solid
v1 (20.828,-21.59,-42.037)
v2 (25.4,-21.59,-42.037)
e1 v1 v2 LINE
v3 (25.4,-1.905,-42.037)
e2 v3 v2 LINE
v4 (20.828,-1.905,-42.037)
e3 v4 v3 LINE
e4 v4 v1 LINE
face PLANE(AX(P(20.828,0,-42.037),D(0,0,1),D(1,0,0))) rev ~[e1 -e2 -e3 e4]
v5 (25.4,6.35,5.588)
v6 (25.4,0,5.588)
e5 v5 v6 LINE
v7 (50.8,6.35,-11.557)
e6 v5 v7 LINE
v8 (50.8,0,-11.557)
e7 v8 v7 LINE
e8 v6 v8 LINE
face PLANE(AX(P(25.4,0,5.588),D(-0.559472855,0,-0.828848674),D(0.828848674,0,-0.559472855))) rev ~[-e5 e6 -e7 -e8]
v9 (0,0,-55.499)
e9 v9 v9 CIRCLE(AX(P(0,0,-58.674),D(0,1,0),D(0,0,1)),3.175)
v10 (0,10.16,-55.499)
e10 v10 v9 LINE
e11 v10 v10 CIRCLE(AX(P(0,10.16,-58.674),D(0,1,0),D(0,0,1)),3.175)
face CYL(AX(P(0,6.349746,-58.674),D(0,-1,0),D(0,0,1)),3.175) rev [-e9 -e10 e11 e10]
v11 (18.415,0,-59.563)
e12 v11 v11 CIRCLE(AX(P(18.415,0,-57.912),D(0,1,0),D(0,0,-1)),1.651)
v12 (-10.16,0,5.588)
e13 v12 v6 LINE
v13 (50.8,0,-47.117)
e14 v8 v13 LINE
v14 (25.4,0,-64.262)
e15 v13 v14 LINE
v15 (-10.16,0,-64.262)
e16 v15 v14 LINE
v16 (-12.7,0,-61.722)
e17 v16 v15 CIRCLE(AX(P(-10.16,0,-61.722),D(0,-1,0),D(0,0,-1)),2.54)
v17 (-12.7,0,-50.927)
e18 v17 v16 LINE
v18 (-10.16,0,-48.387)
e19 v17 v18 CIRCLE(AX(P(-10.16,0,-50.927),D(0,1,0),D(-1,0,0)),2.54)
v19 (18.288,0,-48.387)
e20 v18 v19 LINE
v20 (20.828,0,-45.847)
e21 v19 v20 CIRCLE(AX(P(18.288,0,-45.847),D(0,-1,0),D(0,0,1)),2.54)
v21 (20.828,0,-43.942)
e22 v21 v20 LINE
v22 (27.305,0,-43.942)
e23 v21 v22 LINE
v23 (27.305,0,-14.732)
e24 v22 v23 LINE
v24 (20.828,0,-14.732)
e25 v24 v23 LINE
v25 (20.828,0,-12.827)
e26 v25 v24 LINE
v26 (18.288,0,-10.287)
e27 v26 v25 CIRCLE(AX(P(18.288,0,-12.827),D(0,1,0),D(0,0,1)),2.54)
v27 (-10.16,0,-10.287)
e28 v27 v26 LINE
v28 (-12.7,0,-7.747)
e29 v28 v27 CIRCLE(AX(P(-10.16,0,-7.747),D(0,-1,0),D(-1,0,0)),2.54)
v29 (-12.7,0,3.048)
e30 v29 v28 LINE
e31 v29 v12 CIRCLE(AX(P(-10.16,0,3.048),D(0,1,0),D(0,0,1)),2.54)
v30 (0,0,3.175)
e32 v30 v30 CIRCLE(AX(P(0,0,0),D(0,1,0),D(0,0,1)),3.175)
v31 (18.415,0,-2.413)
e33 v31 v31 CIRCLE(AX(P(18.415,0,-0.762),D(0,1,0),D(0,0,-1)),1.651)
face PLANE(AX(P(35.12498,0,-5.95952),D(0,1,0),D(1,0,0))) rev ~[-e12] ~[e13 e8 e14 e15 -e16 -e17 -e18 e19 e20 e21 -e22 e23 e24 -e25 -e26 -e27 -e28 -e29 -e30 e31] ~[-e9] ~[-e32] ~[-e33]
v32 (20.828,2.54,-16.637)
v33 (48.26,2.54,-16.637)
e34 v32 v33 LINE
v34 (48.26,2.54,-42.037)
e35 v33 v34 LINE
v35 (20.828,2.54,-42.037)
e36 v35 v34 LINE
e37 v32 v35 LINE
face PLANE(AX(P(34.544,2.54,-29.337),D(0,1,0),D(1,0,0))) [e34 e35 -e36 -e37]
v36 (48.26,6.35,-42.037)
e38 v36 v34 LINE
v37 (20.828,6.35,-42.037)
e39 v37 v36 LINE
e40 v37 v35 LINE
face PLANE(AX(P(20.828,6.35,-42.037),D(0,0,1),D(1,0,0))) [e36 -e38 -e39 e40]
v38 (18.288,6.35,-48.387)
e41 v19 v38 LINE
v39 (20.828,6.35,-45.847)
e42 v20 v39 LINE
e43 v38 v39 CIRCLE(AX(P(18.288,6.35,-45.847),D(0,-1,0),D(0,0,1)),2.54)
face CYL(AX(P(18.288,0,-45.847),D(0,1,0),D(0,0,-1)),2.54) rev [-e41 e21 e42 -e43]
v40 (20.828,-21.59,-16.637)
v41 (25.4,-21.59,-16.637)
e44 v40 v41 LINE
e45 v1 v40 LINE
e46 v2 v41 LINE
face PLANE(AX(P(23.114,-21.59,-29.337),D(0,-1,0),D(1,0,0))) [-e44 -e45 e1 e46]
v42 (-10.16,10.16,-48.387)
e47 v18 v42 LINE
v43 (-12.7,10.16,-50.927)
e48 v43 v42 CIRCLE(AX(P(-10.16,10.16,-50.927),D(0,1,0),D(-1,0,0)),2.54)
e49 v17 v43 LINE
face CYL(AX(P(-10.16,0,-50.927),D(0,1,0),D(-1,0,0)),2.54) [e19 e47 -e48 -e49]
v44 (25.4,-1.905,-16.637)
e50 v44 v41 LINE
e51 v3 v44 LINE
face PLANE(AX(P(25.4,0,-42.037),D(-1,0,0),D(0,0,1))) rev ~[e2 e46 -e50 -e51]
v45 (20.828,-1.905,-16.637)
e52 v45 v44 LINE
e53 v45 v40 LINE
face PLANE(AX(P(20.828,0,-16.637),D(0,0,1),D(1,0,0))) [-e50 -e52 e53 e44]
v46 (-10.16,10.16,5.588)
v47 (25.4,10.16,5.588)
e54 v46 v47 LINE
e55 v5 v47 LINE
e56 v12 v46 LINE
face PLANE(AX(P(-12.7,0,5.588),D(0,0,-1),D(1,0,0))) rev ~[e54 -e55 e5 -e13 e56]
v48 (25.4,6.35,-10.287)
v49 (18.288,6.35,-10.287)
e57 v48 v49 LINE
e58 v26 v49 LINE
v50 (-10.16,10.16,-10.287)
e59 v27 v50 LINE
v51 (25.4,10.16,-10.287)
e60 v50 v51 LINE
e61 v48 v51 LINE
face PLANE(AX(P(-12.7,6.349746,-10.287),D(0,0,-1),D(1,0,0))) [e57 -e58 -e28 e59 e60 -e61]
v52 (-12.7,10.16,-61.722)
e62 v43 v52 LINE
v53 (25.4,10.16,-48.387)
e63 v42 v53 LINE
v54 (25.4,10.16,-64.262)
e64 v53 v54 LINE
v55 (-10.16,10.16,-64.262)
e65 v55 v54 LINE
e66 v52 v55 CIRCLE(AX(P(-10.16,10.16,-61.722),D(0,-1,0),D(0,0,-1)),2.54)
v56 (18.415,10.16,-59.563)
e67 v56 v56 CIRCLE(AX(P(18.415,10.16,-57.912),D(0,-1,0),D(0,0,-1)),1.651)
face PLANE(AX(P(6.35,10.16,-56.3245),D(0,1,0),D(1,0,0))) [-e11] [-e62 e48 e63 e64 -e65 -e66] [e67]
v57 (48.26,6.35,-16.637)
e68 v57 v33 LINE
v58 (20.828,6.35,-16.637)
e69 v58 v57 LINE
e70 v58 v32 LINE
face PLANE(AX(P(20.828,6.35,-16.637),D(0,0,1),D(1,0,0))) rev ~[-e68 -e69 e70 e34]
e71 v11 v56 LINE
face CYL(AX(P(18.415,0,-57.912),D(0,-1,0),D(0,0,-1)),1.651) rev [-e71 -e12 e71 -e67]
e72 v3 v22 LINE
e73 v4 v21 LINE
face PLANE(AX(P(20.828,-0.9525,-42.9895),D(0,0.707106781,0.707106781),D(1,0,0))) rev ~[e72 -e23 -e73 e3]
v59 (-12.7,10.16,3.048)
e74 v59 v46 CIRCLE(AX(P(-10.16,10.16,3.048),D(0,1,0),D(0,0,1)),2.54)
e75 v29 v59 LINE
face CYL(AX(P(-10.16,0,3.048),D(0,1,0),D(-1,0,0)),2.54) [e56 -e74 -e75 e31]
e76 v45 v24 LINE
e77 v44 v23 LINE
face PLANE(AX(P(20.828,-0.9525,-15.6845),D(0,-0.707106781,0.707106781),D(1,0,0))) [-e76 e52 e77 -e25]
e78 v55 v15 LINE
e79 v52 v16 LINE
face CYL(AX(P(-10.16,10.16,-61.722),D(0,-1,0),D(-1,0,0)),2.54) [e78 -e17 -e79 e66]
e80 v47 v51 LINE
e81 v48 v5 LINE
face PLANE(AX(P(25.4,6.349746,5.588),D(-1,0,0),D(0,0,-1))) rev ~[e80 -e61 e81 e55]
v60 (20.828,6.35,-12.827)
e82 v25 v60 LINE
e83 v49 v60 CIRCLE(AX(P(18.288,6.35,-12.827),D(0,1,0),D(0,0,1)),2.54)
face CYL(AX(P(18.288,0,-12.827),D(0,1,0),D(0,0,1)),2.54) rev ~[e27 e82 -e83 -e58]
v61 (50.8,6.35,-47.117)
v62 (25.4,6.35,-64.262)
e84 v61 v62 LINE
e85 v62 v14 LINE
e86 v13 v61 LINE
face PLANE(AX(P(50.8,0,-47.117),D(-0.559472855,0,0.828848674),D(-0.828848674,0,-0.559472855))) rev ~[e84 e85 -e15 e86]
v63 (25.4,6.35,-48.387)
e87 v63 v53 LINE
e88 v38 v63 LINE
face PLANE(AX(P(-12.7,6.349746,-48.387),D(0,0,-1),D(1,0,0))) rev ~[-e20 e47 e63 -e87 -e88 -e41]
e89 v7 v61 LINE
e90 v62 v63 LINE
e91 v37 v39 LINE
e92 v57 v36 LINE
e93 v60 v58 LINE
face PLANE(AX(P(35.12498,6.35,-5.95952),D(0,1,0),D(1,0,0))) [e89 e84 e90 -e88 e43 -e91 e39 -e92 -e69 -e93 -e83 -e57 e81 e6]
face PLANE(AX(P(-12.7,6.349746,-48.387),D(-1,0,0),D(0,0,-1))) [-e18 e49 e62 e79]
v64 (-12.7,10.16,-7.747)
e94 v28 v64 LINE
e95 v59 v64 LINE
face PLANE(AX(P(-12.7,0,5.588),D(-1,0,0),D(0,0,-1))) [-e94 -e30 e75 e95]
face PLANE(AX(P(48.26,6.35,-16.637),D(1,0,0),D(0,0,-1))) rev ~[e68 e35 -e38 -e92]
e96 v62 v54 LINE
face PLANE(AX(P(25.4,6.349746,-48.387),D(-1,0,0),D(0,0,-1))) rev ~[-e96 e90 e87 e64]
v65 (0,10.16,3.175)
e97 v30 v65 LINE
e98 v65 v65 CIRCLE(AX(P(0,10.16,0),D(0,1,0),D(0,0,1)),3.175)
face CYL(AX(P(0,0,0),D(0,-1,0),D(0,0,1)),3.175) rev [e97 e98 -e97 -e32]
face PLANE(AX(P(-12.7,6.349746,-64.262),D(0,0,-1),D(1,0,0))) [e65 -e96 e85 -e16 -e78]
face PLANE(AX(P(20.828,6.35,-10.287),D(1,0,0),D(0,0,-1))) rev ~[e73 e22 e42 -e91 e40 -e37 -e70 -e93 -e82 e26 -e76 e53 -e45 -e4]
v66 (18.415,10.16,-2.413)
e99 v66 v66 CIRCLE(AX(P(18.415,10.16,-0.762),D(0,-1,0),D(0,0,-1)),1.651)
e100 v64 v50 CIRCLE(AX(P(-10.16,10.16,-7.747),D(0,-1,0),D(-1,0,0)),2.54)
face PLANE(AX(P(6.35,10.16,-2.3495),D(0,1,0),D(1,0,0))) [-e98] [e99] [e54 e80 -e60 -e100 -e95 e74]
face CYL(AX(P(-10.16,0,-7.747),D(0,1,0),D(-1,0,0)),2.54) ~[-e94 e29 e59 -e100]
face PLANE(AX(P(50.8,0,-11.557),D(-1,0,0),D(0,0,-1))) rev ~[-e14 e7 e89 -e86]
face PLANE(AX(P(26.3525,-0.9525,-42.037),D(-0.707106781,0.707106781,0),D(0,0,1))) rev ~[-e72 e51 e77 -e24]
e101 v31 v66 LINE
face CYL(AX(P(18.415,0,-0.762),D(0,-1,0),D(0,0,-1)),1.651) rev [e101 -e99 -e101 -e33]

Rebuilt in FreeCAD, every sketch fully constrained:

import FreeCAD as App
import Part
import Sketcher
Q = App.Units.Quantity


def edges_at(feature, points):
    """Names of the edges that pass closest to the given points."""
    edges = feature.Shape.Edges
    near = lambda p: min(range(len(edges)), key=lambda i: edges[i].distToShape(Part.Vertex(*p))[0])
    return sorted({f"Edge{near(p) + 1}" for p in points})

doc = App.newDocument("Part")
body = doc.addObject("PartDesign::Body", "Body")

sketch1 = body.newObject("Sketcher::SketchObject", "Sketch")
sketch1.AttachmentSupport = (doc.getObject("XZ_Plane"), [""])
sketch1.MapMode = "FlatFace"
sketch1.addGeometry(Part.LineSegment(App.Vector(-12.7, -64.262, 0), App.Vector(-12.7, 5.588, 0)), False)
sketch1.addGeometry(Part.LineSegment(App.Vector(-12.7, 5.588, 0), App.Vector(25.4, 5.588, 0)), False)
sketch1.addGeometry(Part.LineSegment(App.Vector(25.4, 5.588, 0), App.Vector(50.8, -11.557, 0)), False)
sketch1.addGeometry(Part.LineSegment(App.Vector(50.8, -11.557, 0), App.Vector(50.8, -47.117, 0)), False)
sketch1.addGeometry(Part.LineSegment(App.Vector(50.8, -47.117, 0), App.Vector(25.4, -64.262, 0)), False)
sketch1.addGeometry(Part.LineSegment(App.Vector(25.4, -64.262, 0), App.Vector(-12.7, -64.262, 0)), False)
sketch1.addGeometry(Part.Circle(App.Vector(0, 0, 0), App.Vector(0, 0, 1), 3.175), False)
sketch1.addGeometry(Part.Circle(App.Vector(0, -58.674, 0), App.Vector(0, 0, 1), 3.175), False)
sketch1.addConstraint(Sketcher.Constraint("Coincident", 0, 2, 1, 1))
sketch1.addConstraint(Sketcher.Constraint("Coincident", 1, 2, 2, 1))
sketch1.addConstraint(Sketcher.Constraint("Coincident", 2, 2, 3, 1))
sketch1.addConstraint(Sketcher.Constraint("Coincident", 3, 2, 4, 1))
sketch1.addConstraint(Sketcher.Constraint("Coincident", 4, 2, 5, 1))
sketch1.addConstraint(Sketcher.Constraint("Coincident", 5, 2, 0, 1))
sketch1.addConstraint(Sketcher.Constraint("Vertical", 0))
sketch1.addConstraint(Sketcher.Constraint("Horizontal", 1))
sketch1.addConstraint(Sketcher.Constraint("Vertical", 3))
sketch1.addConstraint(Sketcher.Constraint("Horizontal", 5))
sketch1.addConstraint(Sketcher.Constraint("Coincident", 6, 3, -1, 1))
sketch1.addConstraint(Sketcher.Constraint("Equal", 6, 7))
sketch1.addConstraint(Sketcher.Constraint("PointOnObject", 7, 3, -2))
sketch1.addConstraint(Sketcher.Constraint("Vertical", 1, 2, 4, 2))
sketch1.addConstraint(Sketcher.Constraint("Equal", 2, 4))
sketch1.addConstraint(Sketcher.Constraint("Diameter", 6, Q("0.25 in")))
sketch1.addConstraint(Sketcher.Constraint("DistanceX", 1, 1, 1, 2, Q("1.5 in")))
sketch1.addConstraint(Sketcher.Constraint("DistanceY", 3, 2, 3, 1, Q("1.4 in")))
sketch1.addConstraint(Sketcher.Constraint("DistanceX", -1, 1, 1, 2, Q("1 in")))
sketch1.addConstraint(Sketcher.Constraint("DistanceX", -1, 1, 2, 2, Q("2 in")))
sketch1.addConstraint(Sketcher.Constraint("DistanceY", 0, 1, 0, 2, Q("2.75 in")))
sketch1.addConstraint(Sketcher.Constraint("DistanceY", 7, 3, -1, 1, Q("2.31 in")))
sketch1.addConstraint(Sketcher.Constraint("DistanceY", -1, 1, 0, 2, Q("0.22 in")))
pad1 = body.newObject("PartDesign::Pad", "Pad")
pad1.Profile = sketch1
pad1.Length = Q("0.25 in")
pad1.Reversed = True

sketch2 = body.newObject("Sketcher::SketchObject", "Sketch001")
sketch2.AttachmentSupport = (doc.getObject("XZ_Plane"), [""])
sketch2.MapMode = "FlatFace"
sketch2.AttachmentOffset = App.Placement(App.Vector(0, 0, -0.25 * 25.4), App.Rotation())
sketch2.addGeometry(Part.LineSegment(App.Vector(20.828, -42.037, 0), App.Vector(20.828, -16.637, 0)), False)
sketch2.addGeometry(Part.LineSegment(App.Vector(20.828, -16.637, 0), App.Vector(48.26, -16.637, 0)), False)
sketch2.addGeometry(Part.LineSegment(App.Vector(48.26, -16.637, 0), App.Vector(48.26, -42.037, 0)), False)
sketch2.addGeometry(Part.LineSegment(App.Vector(48.26, -42.037, 0), App.Vector(20.828, -42.037, 0)), False)
sketch2.addConstraint(Sketcher.Constraint("Coincident", 0, 2, 1, 1))
sketch2.addConstraint(Sketcher.Constraint("Coincident", 1, 2, 2, 1))
sketch2.addConstraint(Sketcher.Constraint("Coincident", 2, 2, 3, 1))
sketch2.addConstraint(Sketcher.Constraint("Coincident", 3, 2, 0, 1))
sketch2.addConstraint(Sketcher.Constraint("Vertical", 0))
sketch2.addConstraint(Sketcher.Constraint("Horizontal", 1))
sketch2.addConstraint(Sketcher.Constraint("Vertical", 2))
sketch2.addConstraint(Sketcher.Constraint("Horizontal", 3))
sketch2.addConstraint(Sketcher.Constraint("DistanceY", 0, 1, 0, 2, Q("1 in")))
sketch2.addConstraint(Sketcher.Constraint("DistanceX", 1, 1, 1, 2, Q("1.08 in")))
sketch2.addConstraint(Sketcher.Constraint("DistanceX", -1, 1, 1, 2, Q("1.9 in")))
sketch2.addConstraint(Sketcher.Constraint("DistanceY", 0, 2, -1, 1, Q("0.655 in")))
pocket1 = body.newObject("PartDesign::Pocket", "Pocket")
pocket1.Profile = sketch2
pocket1.Length = Q("0.15 in")
pocket1.Reversed = True

sketch3 = body.newObject("Sketcher::SketchObject", "Sketch002")
sketch3.AttachmentSupport = (doc.getObject("XZ_Plane"), [""])
sketch3.MapMode = "FlatFace"
sketch3.AttachmentOffset = App.Placement(App.Vector(0, 0, -0.25 * 25.4), App.Rotation())
sketch3.addGeometry(Part.LineSegment(App.Vector(-12.7, -48.387, 0), App.Vector(-12.7, -10.287, 0)), False)
sketch3.addGeometry(Part.LineSegment(App.Vector(-12.7, -10.287, 0), App.Vector(20.828, -10.287, 0)), False)
sketch3.addGeometry(Part.LineSegment(App.Vector(20.828, -10.287, 0), App.Vector(20.828, -48.387, 0)), False)
sketch3.addGeometry(Part.LineSegment(App.Vector(20.828, -48.387, 0), App.Vector(-12.7, -48.387, 0)), False)
sketch3.addConstraint(Sketcher.Constraint("Coincident", 0, 2, 1, 1))
sketch3.addConstraint(Sketcher.Constraint("Coincident", 1, 2, 2, 1))
sketch3.addConstraint(Sketcher.Constraint("Coincident", 2, 2, 3, 1))
sketch3.addConstraint(Sketcher.Constraint("Coincident", 3, 2, 0, 1))
sketch3.addConstraint(Sketcher.Constraint("Vertical", 0))
sketch3.addConstraint(Sketcher.Constraint("Horizontal", 1))
sketch3.addConstraint(Sketcher.Constraint("Vertical", 2))
sketch3.addConstraint(Sketcher.Constraint("Horizontal", 3))
sketch3.addConstraint(Sketcher.Constraint("DistanceY", 0, 1, 0, 2, Q("1.5 in")))
sketch3.addConstraint(Sketcher.Constraint("DistanceX", 1, 1, 1, 2, Q("1.32 in")))
sketch3.addConstraint(Sketcher.Constraint("DistanceX", 0, 2, -1, 1, Q("0.5 in")))
sketch3.addConstraint(Sketcher.Constraint("DistanceY", 0, 2, -1, 1, Q("0.405 in")))
pocket2 = body.newObject("PartDesign::Pocket", "Pocket001")
pocket2.Profile = sketch3
pocket2.Type = "ThroughAll"
pocket2.Reversed = True

sketch4 = body.newObject("Sketcher::SketchObject", "Sketch003")
sketch4.AttachmentSupport = (doc.getObject("XZ_Plane"), [""])
sketch4.MapMode = "FlatFace"
sketch4.addGeometry(Part.LineSegment(App.Vector(20.828, -16.637, 0), App.Vector(20.828, -42.037, 0)), False)
sketch4.addGeometry(Part.LineSegment(App.Vector(20.828, -42.037, 0), App.Vector(25.4, -42.037, 0)), False)
sketch4.addGeometry(Part.LineSegment(App.Vector(25.4, -42.037, 0), App.Vector(25.4, -16.637, 0)), False)
sketch4.addGeometry(Part.LineSegment(App.Vector(25.4, -16.637, 0), App.Vector(20.828, -16.637, 0)), False)
sketch4.addConstraint(Sketcher.Constraint("Coincident", 0, 2, 1, 1))
sketch4.addConstraint(Sketcher.Constraint("Coincident", 1, 2, 2, 1))
sketch4.addConstraint(Sketcher.Constraint("Coincident", 2, 2, 3, 1))
sketch4.addConstraint(Sketcher.Constraint("Coincident", 3, 2, 0, 1))
sketch4.addConstraint(Sketcher.Constraint("Vertical", 0))
sketch4.addConstraint(Sketcher.Constraint("Horizontal", 1))
sketch4.addConstraint(Sketcher.Constraint("Vertical", 2))
sketch4.addConstraint(Sketcher.Constraint("Horizontal", 3))
sketch4.addConstraint(Sketcher.Constraint("DistanceY", 0, 2, 0, 1, Q("1 in")))
sketch4.addConstraint(Sketcher.Constraint("DistanceX", -1, 1, 1, 2, Q("1 in")))
sketch4.addConstraint(Sketcher.Constraint("DistanceX", 1, 1, 1, 2, Q("0.18 in")))
sketch4.addConstraint(Sketcher.Constraint("DistanceY", 0, 2, -1, 1, Q("1.655 in")))
pad2 = body.newObject("PartDesign::Pad", "Pad001")
pad2.Profile = sketch4
pad2.Length = Q("0.85 in")

sketch5 = body.newObject("Sketcher::SketchObject", "Sketch004")
sketch5.AttachmentSupport = (doc.getObject("XZ_Plane"), [""])
sketch5.MapMode = "FlatFace"
sketch5.AttachmentOffset = App.Placement(App.Vector(0, 0, -0.25 * 25.4), App.Rotation())
sketch5.addGeometry(Part.LineSegment(App.Vector(-12.7, -64.262, 0), App.Vector(-12.7, -48.387, 0)), False)
sketch5.addGeometry(Part.LineSegment(App.Vector(-12.7, -48.387, 0), App.Vector(25.4, -48.387, 0)), False)
sketch5.addGeometry(Part.LineSegment(App.Vector(25.4, -48.387, 0), App.Vector(25.4, -64.262, 0)), False)
sketch5.addGeometry(Part.LineSegment(App.Vector(25.4, -64.262, 0), App.Vector(-12.7, -64.262, 0)), False)
sketch5.addGeometry(Part.Circle(App.Vector(0, -58.674, 0), App.Vector(0, 0, 1), 3.175), False)
sketch5.addGeometry(Part.LineSegment(App.Vector(-12.7, -10.287, 0), App.Vector(-12.7, 5.588, 0)), False)
sketch5.addGeometry(Part.LineSegment(App.Vector(-12.7, 5.588, 0), App.Vector(25.4, 5.588, 0)), False)
sketch5.addGeometry(Part.LineSegment(App.Vector(25.4, 5.588, 0), App.Vector(25.4, -10.287, 0)), False)
sketch5.addGeometry(Part.LineSegment(App.Vector(25.4, -10.287, 0), App.Vector(-12.7, -10.287, 0)), False)
sketch5.addGeometry(Part.Circle(App.Vector(0, 0, 0), App.Vector(0, 0, 1), 3.175), False)
sketch5.addConstraint(Sketcher.Constraint("Coincident", 0, 2, 1, 1))
sketch5.addConstraint(Sketcher.Constraint("Coincident", 1, 2, 2, 1))
sketch5.addConstraint(Sketcher.Constraint("Coincident", 2, 2, 3, 1))
sketch5.addConstraint(Sketcher.Constraint("Coincident", 3, 2, 0, 1))
sketch5.addConstraint(Sketcher.Constraint("Coincident", 5, 2, 6, 1))
sketch5.addConstraint(Sketcher.Constraint("Coincident", 6, 2, 7, 1))
sketch5.addConstraint(Sketcher.Constraint("Coincident", 7, 2, 8, 1))
sketch5.addConstraint(Sketcher.Constraint("Coincident", 8, 2, 5, 1))
sketch5.addConstraint(Sketcher.Constraint("Vertical", 0))
sketch5.addConstraint(Sketcher.Constraint("Horizontal", 1))
sketch5.addConstraint(Sketcher.Constraint("Vertical", 2))
sketch5.addConstraint(Sketcher.Constraint("Horizontal", 3))
sketch5.addConstraint(Sketcher.Constraint("Vertical", 5))
sketch5.addConstraint(Sketcher.Constraint("Horizontal", 6))
sketch5.addConstraint(Sketcher.Constraint("Vertical", 7))
sketch5.addConstraint(Sketcher.Constraint("Horizontal", 8))
sketch5.addConstraint(Sketcher.Constraint("Coincident", 9, 3, -1, 1))
sketch5.addConstraint(Sketcher.Constraint("Equal", 4, 9))
sketch5.addConstraint(Sketcher.Constraint("PointOnObject", 4, 3, -2))
sketch5.addConstraint(Sketcher.Constraint("Vertical", 3, 2, 5, 2))
sketch5.addConstraint(Sketcher.Constraint("Vertical", 2, 2, 6, 2))
sketch5.addConstraint(Sketcher.Constraint("Equal", 2, 5))
sketch5.addConstraint(Sketcher.Constraint("Diameter", 4, Q("0.25 in")))
sketch5.addConstraint(Sketcher.Constraint("DistanceX", 1, 1, 1, 2, Q("1.5 in")))
sketch5.addConstraint(Sketcher.Constraint("DistanceX", -1, 1, 1, 2, Q("1 in")))
sketch5.addConstraint(Sketcher.Constraint("DistanceY", 1, 2, 7, 2, Q("1.5 in")))
sketch5.addConstraint(Sketcher.Constraint("DistanceY", 0, 1, 0, 2, Q("0.625 in")))
sketch5.addConstraint(Sketcher.Constraint("DistanceY", 4, 3, -1, 1, Q("2.31 in")))
sketch5.addConstraint(Sketcher.Constraint("DistanceY", 2, 2, -1, 1, Q("2.53 in")))
pad3 = body.newObject("PartDesign::Pad", "Pad002")
pad3.Profile = sketch5
pad3.Type = "TwoLengths"
pad3.Length = Q("0.15 in")
pad3.Length2 = 0.000254
pad3.Reversed = True

sketch6 = body.newObject("Sketcher::SketchObject", "Sketch005")
sketch6.AttachmentSupport = (doc.getObject("XZ_Plane"), [""])
sketch6.MapMode = "FlatFace"
sketch6.AttachmentOffset = App.Placement(App.Vector(0, 0, -0.4 * 25.4), App.Rotation())
sketch6.addGeometry(Part.Circle(App.Vector(18.415, -57.912, 0), App.Vector(0, 0, 1), 1.651), False)
sketch6.addGeometry(Part.Circle(App.Vector(18.415, -0.762, 0), App.Vector(0, 0, 1), 1.651), False)
sketch6.addConstraint(Sketcher.Constraint("Equal", 0, 1))
sketch6.addConstraint(Sketcher.Constraint("Vertical", 0, 3, 1, 3))
sketch6.addConstraint(Sketcher.Constraint("Diameter", 0, Q("0.13 in")))
sketch6.addConstraint(Sketcher.Constraint("DistanceY", 0, 3, -1, 1, Q("2.28 in")))
sketch6.addConstraint(Sketcher.Constraint("DistanceY", 1, 3, -1, 1, Q("0.03 in")))
sketch6.addConstraint(Sketcher.Constraint("DistanceX", -1, 1, 0, 3, Q("0.725 in")))
pocket3 = body.newObject("PartDesign::Pocket", "Pocket002")
pocket3.Profile = sketch6
pocket3.Type = "ThroughAll"
pocket3.Midplane = True
doc.recompute()

fillet = body.newObject("PartDesign::Fillet", "Fillet")
fillet.Base = (pocket3, edges_at(pocket3, [
    (-12.7, 5.08, 5.588),
    (-12.7, 5.08, -64.262),
    (20.828, 3.175, -48.387),
    (-12.7, 5.08, -10.287),
    (-12.7, 5.08, -48.387),
    (20.828, 3.175, -10.287),
]))
fillet.Radius = Q("0.1 in")
doc.recompute()

chamfer = body.newObject("PartDesign::Chamfer", "Chamfer")
chamfer.Base = (fillet, edges_at(fillet, [(23.114, 0, -42.037), (25.4, 0, -29.337), (23.114, 0, -16.637)]))
chamfer.Size = Q("0.075 in")

doc.recompute()
